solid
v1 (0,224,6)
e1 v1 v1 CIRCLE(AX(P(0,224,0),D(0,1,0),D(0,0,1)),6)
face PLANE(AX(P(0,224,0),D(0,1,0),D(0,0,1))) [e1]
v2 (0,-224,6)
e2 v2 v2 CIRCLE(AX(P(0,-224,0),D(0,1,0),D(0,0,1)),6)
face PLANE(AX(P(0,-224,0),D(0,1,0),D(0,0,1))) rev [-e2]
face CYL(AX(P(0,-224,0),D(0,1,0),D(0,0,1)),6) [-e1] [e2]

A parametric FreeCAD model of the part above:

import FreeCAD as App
import Part
import Sketcher

doc = App.newDocument("Part")
body = doc.addObject("PartDesign::Body", "Body")

sketch1 = body.newObject("Sketcher::SketchObject", "Sketch")
sketch1.AttachmentSupport = (doc.getObject("XZ_Plane"), [""])
sketch1.MapMode = "FlatFace"
sketch1.addGeometry(Part.Circle(App.Vector(0, 0, 0), App.Vector(0, 0, 1), 6), False)
sketch1.addConstraint([
    Sketcher.Constraint("Coincident", 0, 3, -1, 1),
    Sketcher.Constraint("Diameter", 0, 12.0),
])
pad1 = body.newObject("PartDesign::Pad", "Pad")
pad1.Profile = sketch1
pad1.Type = "TwoLengths"
pad1.Length = 224
pad1.Length2 = 224
pad1.Reversed = True

doc.recompute()
